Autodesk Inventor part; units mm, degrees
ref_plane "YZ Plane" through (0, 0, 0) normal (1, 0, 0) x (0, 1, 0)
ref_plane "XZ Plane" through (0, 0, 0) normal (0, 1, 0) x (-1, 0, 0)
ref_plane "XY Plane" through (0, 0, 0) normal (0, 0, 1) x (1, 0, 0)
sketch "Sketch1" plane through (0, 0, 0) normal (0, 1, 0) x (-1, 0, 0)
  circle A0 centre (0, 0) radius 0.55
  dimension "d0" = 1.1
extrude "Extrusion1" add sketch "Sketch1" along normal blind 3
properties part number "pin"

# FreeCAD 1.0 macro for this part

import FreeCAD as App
import Part
import Sketcher

V = App.Vector
Q = App.Units.Quantity

doc = App.newDocument("Part")
body = doc.addObject("PartDesign::Body", "Body")

# Sketch on XZ plane
sketch1 = body.newObject("Sketcher::SketchObject", "Sketch")
sketch1.AttachmentSupport = (doc.getObject("XZ_Plane"), [""])
sketch1.MapMode = "FlatFace"
sketch1.addGeometry(Part.Circle(V(0, 0, 0), V(0, 0, 1), 0.55), False)
sketch1.addConstraint([
    Sketcher.Constraint("Coincident", 0, 3, -1, 1),
    Sketcher.Constraint("Diameter", 0, Q("1.1 mm")),
])
pad1 = body.newObject("PartDesign::Pad", "Pad")
pad1.Profile = sketch1
pad1.Length = 3
pad1.Reversed = True

doc.recompute()
